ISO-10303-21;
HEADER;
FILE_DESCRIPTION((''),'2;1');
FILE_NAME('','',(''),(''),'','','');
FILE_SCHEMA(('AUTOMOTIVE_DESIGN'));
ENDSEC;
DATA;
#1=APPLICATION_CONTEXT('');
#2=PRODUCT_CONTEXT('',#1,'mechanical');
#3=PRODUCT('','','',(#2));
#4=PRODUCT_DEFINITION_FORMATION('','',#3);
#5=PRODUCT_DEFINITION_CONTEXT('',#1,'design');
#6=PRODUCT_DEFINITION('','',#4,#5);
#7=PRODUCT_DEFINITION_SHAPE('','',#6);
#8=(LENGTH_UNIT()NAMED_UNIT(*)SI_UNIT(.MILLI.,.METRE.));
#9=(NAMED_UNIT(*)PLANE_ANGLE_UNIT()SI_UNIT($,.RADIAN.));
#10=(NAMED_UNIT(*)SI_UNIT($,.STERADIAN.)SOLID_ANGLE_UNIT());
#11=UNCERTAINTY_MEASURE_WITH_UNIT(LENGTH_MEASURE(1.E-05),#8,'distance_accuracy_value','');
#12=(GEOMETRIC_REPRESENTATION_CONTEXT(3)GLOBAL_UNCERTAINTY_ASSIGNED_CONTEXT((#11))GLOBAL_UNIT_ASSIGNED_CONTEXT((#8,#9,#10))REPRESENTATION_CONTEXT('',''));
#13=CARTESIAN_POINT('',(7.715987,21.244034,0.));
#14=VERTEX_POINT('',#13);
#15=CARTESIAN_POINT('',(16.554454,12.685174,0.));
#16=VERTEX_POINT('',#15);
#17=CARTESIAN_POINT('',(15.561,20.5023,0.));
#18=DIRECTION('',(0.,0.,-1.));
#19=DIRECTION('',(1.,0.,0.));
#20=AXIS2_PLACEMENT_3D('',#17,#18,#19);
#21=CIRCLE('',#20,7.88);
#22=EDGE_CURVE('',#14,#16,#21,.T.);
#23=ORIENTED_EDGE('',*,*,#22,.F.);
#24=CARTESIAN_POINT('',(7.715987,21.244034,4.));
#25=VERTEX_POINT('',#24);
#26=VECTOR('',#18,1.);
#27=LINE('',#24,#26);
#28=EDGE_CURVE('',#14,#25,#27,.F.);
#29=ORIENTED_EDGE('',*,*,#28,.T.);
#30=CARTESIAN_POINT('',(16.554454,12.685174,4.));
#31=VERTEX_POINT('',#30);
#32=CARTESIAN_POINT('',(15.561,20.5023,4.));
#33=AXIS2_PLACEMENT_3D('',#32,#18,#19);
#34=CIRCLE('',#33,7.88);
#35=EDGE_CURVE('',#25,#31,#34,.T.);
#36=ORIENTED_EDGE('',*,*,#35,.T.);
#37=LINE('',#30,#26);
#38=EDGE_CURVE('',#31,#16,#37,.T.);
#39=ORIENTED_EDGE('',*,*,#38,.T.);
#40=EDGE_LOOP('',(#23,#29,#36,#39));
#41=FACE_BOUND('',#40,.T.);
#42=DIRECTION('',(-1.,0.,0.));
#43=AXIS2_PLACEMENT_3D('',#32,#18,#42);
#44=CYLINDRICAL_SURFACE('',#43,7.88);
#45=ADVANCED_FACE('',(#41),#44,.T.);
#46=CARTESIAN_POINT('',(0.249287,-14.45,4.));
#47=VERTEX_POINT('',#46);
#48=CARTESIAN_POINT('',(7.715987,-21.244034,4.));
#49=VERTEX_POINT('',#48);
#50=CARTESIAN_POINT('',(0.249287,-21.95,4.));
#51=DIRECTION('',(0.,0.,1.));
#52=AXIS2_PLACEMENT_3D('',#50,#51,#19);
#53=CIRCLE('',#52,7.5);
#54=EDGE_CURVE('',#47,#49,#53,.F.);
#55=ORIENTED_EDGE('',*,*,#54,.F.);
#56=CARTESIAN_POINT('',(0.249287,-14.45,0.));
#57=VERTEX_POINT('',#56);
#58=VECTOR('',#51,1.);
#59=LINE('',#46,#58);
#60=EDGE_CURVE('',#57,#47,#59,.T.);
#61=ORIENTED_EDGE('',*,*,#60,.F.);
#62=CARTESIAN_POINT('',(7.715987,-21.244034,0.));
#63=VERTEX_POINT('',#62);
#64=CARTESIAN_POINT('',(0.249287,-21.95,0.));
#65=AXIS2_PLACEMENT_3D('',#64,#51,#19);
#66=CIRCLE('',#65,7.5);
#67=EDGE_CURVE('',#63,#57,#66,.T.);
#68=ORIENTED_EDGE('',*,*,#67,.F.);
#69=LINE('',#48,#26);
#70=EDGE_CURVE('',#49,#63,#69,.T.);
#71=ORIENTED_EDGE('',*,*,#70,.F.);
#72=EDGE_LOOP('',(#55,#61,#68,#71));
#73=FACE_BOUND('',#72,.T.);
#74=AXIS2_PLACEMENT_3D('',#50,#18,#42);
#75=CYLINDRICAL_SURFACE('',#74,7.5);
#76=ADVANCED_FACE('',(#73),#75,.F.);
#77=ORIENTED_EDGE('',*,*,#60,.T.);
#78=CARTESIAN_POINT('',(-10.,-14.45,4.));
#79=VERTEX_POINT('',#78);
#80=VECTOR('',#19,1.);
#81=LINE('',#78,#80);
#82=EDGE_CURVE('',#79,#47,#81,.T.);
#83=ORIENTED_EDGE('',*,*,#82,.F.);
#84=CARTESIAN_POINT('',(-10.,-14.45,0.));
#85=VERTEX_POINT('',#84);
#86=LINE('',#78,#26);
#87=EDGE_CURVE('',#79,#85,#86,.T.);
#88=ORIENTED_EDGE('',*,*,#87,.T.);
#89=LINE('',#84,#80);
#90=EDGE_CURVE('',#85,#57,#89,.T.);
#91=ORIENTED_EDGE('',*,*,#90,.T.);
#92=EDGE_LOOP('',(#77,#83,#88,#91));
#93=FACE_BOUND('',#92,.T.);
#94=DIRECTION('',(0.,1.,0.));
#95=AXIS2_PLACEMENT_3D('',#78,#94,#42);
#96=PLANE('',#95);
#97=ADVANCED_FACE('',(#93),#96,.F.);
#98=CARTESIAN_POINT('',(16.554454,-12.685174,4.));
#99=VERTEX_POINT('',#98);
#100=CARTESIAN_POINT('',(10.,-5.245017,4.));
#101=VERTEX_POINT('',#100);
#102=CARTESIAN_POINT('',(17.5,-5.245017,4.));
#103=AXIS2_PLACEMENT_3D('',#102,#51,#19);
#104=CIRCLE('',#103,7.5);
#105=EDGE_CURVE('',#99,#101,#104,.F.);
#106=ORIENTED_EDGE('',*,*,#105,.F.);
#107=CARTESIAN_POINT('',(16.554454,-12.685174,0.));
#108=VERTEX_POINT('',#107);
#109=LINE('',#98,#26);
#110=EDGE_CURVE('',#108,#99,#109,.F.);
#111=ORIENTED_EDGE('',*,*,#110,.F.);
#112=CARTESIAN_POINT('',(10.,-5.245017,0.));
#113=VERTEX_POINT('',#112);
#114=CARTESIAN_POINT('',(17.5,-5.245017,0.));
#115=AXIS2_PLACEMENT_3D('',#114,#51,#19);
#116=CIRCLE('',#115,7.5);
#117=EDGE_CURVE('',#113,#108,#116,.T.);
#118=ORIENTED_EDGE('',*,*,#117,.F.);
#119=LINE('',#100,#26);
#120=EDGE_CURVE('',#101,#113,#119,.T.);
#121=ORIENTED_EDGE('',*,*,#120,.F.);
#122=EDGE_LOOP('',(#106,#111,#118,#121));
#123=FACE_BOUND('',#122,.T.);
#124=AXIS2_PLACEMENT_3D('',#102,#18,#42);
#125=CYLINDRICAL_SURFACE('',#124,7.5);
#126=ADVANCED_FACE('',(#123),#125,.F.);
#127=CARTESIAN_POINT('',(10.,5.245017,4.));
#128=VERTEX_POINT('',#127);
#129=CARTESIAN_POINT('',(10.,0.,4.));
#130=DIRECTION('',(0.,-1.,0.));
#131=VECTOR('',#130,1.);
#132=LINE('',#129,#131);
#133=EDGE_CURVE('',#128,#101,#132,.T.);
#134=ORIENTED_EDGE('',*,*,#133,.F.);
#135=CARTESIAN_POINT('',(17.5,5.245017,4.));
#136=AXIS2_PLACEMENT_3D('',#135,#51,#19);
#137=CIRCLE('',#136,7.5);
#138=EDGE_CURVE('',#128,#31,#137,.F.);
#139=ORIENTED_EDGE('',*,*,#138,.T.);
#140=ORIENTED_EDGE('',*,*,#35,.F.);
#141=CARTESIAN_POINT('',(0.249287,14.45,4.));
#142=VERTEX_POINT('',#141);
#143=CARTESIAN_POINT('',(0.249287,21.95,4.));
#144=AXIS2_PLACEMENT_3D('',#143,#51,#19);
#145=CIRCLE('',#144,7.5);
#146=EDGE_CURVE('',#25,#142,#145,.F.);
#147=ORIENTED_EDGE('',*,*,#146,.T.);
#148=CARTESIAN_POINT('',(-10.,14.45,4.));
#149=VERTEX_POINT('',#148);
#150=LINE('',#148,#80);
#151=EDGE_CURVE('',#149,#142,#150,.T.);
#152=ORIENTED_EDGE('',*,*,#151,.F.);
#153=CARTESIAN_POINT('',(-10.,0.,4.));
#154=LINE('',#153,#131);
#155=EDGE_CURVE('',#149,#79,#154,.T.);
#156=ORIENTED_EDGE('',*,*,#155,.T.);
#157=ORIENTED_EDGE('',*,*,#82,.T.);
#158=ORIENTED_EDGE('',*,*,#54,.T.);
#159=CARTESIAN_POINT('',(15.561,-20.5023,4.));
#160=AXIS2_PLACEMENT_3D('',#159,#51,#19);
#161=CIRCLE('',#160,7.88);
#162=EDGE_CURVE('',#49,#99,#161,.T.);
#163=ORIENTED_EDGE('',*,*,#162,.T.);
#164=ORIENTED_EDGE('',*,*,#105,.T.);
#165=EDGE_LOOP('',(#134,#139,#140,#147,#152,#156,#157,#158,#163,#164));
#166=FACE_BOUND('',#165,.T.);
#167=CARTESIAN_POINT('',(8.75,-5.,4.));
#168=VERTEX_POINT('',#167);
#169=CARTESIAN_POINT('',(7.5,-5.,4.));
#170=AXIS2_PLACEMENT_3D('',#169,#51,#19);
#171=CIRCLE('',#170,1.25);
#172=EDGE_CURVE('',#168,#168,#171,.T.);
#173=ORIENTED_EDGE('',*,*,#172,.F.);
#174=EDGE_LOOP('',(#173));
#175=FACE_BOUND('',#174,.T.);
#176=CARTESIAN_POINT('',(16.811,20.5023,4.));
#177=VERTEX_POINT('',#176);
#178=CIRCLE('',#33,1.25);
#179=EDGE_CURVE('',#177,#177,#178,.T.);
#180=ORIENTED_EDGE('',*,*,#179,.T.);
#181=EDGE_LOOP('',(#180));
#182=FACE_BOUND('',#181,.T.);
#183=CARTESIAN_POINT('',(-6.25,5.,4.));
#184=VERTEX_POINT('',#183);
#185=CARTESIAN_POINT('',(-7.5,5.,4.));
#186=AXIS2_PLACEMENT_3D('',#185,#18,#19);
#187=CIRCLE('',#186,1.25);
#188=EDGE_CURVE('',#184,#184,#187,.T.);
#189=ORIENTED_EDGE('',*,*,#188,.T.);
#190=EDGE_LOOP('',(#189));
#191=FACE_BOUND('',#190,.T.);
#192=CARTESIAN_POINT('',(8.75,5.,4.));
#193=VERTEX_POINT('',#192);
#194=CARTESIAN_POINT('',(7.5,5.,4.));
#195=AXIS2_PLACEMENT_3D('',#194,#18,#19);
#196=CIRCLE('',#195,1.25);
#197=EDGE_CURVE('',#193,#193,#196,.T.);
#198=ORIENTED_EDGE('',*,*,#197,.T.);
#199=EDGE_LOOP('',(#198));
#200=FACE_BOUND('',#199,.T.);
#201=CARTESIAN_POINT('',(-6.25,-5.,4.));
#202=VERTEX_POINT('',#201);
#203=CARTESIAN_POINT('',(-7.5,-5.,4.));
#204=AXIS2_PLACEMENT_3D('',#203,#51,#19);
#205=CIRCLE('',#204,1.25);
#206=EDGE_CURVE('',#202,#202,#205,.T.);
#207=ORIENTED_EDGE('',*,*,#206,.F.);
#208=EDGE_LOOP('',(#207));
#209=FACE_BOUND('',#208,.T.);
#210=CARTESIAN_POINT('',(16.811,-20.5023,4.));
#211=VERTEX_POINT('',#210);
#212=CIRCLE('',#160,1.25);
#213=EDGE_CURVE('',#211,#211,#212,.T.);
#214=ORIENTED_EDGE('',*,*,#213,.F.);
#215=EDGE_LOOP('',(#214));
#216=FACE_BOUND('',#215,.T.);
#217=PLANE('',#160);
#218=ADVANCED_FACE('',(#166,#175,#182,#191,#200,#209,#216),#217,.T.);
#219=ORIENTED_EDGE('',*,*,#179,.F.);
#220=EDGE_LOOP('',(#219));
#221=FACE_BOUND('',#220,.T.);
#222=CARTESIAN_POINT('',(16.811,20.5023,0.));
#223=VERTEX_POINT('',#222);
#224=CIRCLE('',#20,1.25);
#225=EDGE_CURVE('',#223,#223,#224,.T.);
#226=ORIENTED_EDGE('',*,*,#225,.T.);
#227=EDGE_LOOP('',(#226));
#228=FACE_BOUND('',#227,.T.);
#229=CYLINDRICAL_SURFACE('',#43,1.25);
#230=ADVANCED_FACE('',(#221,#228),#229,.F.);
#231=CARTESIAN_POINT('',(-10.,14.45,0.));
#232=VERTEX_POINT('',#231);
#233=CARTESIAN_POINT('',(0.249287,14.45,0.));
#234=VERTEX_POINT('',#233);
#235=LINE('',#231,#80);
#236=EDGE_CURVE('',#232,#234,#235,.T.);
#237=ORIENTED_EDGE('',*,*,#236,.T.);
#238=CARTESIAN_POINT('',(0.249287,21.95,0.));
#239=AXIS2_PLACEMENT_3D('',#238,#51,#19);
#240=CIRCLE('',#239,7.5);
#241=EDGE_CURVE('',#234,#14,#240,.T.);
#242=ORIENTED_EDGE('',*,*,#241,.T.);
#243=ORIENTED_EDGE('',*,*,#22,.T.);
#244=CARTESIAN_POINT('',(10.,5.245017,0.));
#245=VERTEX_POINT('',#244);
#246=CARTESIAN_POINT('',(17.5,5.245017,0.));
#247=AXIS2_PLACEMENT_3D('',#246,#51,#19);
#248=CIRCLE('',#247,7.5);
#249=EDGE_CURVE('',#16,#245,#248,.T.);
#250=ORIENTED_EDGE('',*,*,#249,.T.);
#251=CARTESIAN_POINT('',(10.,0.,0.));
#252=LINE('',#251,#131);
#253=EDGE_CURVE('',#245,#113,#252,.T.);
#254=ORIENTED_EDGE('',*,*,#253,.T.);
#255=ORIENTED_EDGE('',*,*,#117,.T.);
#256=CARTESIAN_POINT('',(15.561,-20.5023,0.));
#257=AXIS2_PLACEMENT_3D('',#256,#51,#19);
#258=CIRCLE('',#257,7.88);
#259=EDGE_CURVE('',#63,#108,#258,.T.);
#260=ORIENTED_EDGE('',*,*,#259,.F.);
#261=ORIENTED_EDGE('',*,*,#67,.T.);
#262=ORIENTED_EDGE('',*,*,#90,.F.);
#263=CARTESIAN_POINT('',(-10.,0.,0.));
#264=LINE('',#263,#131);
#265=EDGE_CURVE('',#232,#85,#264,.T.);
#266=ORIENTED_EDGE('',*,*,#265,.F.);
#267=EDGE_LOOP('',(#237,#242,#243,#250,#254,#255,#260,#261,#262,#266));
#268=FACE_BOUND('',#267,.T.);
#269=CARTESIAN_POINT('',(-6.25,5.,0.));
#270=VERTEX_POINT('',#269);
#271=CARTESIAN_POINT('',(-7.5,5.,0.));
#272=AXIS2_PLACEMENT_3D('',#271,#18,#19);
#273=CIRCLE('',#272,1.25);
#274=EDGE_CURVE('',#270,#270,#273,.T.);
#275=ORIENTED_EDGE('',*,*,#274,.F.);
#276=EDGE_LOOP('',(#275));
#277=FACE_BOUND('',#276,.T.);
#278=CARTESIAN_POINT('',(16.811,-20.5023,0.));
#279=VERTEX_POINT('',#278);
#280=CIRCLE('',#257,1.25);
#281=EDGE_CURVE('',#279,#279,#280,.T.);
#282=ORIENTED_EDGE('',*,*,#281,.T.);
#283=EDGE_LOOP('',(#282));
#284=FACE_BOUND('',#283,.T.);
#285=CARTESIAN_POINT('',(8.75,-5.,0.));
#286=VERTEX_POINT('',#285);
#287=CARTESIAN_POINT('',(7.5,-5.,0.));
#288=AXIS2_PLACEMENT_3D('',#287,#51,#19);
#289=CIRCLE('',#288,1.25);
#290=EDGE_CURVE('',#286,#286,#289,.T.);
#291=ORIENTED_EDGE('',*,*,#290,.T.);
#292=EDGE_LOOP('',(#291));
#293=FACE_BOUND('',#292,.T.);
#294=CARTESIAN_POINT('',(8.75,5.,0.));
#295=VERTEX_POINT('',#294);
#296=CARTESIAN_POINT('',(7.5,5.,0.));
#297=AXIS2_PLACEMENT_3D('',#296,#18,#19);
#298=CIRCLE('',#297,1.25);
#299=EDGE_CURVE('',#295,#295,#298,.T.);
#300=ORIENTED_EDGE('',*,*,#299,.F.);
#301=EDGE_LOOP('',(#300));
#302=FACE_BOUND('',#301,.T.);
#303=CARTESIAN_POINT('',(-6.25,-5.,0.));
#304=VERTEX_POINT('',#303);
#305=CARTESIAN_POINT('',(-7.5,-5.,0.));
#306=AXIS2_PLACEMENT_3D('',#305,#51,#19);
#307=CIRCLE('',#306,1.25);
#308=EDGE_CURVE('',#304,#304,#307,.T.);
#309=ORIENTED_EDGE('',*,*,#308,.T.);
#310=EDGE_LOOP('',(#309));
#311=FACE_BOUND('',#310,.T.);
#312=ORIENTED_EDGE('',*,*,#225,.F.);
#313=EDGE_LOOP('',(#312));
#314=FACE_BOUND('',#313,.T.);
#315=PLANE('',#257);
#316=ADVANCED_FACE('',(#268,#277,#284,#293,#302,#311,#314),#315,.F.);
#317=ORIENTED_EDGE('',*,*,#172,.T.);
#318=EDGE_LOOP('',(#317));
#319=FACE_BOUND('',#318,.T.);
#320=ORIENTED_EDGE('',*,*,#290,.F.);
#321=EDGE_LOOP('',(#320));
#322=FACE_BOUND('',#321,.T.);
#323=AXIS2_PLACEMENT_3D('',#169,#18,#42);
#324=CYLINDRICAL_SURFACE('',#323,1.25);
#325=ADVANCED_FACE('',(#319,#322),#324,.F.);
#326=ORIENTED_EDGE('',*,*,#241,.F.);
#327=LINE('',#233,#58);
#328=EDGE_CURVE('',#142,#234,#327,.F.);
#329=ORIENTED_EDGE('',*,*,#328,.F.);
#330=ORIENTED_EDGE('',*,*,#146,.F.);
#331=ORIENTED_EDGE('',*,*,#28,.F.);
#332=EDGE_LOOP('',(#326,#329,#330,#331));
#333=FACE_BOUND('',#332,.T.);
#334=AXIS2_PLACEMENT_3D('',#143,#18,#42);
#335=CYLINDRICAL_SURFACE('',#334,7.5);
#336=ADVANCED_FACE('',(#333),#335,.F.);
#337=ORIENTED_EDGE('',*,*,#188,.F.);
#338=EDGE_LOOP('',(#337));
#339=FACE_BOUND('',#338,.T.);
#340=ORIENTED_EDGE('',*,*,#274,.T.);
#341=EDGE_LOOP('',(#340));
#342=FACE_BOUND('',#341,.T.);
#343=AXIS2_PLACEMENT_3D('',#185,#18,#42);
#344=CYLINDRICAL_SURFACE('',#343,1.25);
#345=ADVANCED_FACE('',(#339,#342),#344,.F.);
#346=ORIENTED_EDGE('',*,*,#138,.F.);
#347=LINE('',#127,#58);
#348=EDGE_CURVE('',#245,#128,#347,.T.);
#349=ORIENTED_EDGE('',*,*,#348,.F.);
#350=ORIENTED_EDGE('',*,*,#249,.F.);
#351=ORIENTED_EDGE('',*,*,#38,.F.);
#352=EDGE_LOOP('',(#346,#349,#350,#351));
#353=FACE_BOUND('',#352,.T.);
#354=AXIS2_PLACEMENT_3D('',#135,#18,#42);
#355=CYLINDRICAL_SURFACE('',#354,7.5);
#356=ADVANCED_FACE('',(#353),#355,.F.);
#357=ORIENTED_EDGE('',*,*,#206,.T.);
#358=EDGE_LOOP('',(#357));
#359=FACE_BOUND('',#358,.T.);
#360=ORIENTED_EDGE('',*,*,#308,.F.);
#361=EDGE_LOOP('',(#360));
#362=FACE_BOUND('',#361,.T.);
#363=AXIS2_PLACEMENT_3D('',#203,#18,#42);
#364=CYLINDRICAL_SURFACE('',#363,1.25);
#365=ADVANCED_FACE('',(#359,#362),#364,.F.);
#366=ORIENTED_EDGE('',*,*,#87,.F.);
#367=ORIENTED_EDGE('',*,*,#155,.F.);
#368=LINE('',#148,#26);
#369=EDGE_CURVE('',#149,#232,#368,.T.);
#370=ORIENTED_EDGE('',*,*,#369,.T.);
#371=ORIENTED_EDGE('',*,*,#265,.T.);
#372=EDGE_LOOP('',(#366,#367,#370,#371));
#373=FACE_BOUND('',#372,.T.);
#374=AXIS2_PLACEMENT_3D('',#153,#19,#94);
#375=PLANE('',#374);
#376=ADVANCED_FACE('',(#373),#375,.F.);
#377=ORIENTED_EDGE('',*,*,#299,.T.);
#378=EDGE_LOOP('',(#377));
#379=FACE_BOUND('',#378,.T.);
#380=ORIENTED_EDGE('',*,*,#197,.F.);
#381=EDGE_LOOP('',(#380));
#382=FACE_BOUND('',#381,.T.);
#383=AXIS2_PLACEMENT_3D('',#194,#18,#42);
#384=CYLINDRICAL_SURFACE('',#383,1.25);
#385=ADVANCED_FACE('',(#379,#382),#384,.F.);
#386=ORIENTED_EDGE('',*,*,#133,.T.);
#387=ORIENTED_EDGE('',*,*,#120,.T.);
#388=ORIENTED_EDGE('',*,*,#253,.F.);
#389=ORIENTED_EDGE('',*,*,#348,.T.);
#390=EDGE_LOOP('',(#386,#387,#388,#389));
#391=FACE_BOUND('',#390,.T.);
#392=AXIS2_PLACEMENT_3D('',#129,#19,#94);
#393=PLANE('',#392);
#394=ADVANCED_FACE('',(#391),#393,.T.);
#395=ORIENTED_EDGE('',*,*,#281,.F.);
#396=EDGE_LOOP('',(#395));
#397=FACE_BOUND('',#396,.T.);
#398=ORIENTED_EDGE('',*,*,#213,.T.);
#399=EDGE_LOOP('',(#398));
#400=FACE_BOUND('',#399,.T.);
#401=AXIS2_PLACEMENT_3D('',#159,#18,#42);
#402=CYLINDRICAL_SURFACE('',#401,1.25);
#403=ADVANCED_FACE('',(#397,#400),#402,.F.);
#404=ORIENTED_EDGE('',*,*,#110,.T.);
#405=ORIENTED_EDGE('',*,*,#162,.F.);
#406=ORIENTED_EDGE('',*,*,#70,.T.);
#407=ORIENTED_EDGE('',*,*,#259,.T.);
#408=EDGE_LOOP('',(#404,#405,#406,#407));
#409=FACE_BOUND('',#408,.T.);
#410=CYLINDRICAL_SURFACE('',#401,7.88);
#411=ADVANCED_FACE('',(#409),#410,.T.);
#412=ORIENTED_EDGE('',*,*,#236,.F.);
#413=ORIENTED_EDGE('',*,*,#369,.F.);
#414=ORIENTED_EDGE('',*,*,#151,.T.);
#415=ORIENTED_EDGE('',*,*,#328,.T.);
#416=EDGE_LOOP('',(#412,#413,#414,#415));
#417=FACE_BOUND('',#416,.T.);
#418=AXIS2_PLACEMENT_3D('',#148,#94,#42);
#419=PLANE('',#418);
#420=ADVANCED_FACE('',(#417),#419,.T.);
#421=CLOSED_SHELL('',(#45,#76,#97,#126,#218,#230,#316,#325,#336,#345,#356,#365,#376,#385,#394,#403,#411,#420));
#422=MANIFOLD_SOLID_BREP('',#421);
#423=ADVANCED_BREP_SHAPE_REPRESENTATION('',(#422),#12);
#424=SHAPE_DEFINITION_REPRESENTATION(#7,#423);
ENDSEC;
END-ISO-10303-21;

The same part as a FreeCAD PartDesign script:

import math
import FreeCAD as App
import Part
import Sketcher
Q = App.Units.Quantity


def edges_at(feature, points):
    """Names of the edges that pass closest to the given points."""
    edges = feature.Shape.Edges
    near = lambda p: min(range(len(edges)), key=lambda i: edges[i].distToShape(Part.Vertex(*p))[0])
    return sorted({f"Edge{near(p) + 1}" for p in points})

doc = App.newDocument("Part")
body = doc.addObject("PartDesign::Body", "Body")

sketch1 = doc.addObject("Sketcher::SketchObject", "Sketch")
body.addObject(sketch1)
sketch1.AttachmentSupport = (doc.XY_Plane, [""])
sketch1.MapMode = "FlatFace"
sketch1.addGeometry([
    Part.LineSegment(App.Vector(-10, -14.45, 0), App.Vector(7.681, -14.45, 0)),
    Part.LineSegment(App.Vector(7.681, -14.45, 0), App.Vector(7.681, -20.5023, 0)),
    Part.ArcOfCircle(Part.Circle(App.Vector(15.561, -20.5023, 0), App.Vector(0, 0, 1), 7.88), math.radians(180), math.radians(450)),
    Part.LineSegment(App.Vector(15.561, -12.6223, 0), App.Vector(10, -12.6223, 0)),
    Part.LineSegment(App.Vector(10, -12.6223, 0), App.Vector(10, 0, 0)),
    Part.LineSegment(App.Vector(10, 0, 0), App.Vector(-10, 0, 0)),
    Part.LineSegment(App.Vector(-10, 0, 0), App.Vector(-10, -14.45, 0)),
    Part.Circle(App.Vector(15.561, -20.5023, 0), App.Vector(0, 0, 1), 1.25),
    Part.Circle(App.Vector(-7.5, -5, 0), App.Vector(0, 0, 1), 1.25),
    Part.Circle(App.Vector(7.5, -5, 0), App.Vector(0, 0, 1), 1.25),
], False)
sketch1.addConstraint([
    Sketcher.Constraint("Coincident", 0, 2, 1, 1),
    Sketcher.Constraint("Tangent", 1, 2, 2, 1),
    Sketcher.Constraint("Tangent", 2, 2, 3, 1),
    Sketcher.Constraint("Coincident", 3, 2, 4, 1),
    Sketcher.Constraint("Coincident", 4, 2, 5, 1),
    Sketcher.Constraint("Coincident", 5, 2, 6, 1),
    Sketcher.Constraint("Coincident", 6, 2, 0, 1),
    Sketcher.Constraint("Horizontal", 0),
    Sketcher.Constraint("Vertical", 1),
    Sketcher.Constraint("Horizontal", 3),
    Sketcher.Constraint("Vertical", 4),
    Sketcher.Constraint("Horizontal", 5),
    Sketcher.Constraint("Vertical", 6),
    Sketcher.Constraint("Coincident", 7, 3, 2, 3),
    Sketcher.Constraint("Equal", 7, 8),
    Sketcher.Constraint("Equal", 8, 9),
    Sketcher.Constraint("Symmetric", 4, 2, 5, 2, -1, 1),
    Sketcher.Constraint("Symmetric", 8, 3, 9, 3, -2),
    Sketcher.Constraint("Diameter", 7, Q("2.5 mm")),
    Sketcher.Constraint("DistanceX", 5, 2, 5, 1, Q("20 mm")),
    Sketcher.Constraint("Radius", 2, Q("7.88 mm")),
    Sketcher.Constraint("DistanceY", 8, 3, -1, 1, Q("5 mm")),
    Sketcher.Constraint("DistanceX", 8, 3, 9, 3, Q("15 mm")),
    Sketcher.Constraint("DistanceY", 6, 2, 6, 1, Q("14.45 mm")),
    Sketcher.Constraint("DistanceX", 0, 1, 0, 2, Q("17.681 mm")),
    Sketcher.Constraint("DistanceY", 1, 2, 1, 1, Q("6.0523 mm")),
])
pad1 = doc.addObject("PartDesign::Pad", "Pad")
body.addObject(pad1)
pad1.Profile = sketch1
pad1.Length = 4
doc.recompute()

fillet = doc.addObject("PartDesign::Fillet", "Fillet")
body.addObject(fillet)
fillet.Base = (pad1, edges_at(pad1, [(7.681, -14.45, 2), (10, -12.622, 2)]))
fillet.Radius = 7.5
doc.recompute()

mirrored = doc.addObject("PartDesign::Mirrored", "Mirrored")
body.addObject(mirrored)
mirrored.Originals = [pad1]
mirrored.MirrorPlane = (doc.XZ_Plane, [""])
body.Tip = mirrored
doc.recompute()

fillet2 = doc.addObject("PartDesign::Fillet", "Fillet001")
body.addObject(fillet2)
fillet2.Base = (mirrored, edges_at(mirrored, [(7.681, 14.45, 2), (10, 12.622, 2)]))
fillet2.Radius = 7.5

doc.recompute()
